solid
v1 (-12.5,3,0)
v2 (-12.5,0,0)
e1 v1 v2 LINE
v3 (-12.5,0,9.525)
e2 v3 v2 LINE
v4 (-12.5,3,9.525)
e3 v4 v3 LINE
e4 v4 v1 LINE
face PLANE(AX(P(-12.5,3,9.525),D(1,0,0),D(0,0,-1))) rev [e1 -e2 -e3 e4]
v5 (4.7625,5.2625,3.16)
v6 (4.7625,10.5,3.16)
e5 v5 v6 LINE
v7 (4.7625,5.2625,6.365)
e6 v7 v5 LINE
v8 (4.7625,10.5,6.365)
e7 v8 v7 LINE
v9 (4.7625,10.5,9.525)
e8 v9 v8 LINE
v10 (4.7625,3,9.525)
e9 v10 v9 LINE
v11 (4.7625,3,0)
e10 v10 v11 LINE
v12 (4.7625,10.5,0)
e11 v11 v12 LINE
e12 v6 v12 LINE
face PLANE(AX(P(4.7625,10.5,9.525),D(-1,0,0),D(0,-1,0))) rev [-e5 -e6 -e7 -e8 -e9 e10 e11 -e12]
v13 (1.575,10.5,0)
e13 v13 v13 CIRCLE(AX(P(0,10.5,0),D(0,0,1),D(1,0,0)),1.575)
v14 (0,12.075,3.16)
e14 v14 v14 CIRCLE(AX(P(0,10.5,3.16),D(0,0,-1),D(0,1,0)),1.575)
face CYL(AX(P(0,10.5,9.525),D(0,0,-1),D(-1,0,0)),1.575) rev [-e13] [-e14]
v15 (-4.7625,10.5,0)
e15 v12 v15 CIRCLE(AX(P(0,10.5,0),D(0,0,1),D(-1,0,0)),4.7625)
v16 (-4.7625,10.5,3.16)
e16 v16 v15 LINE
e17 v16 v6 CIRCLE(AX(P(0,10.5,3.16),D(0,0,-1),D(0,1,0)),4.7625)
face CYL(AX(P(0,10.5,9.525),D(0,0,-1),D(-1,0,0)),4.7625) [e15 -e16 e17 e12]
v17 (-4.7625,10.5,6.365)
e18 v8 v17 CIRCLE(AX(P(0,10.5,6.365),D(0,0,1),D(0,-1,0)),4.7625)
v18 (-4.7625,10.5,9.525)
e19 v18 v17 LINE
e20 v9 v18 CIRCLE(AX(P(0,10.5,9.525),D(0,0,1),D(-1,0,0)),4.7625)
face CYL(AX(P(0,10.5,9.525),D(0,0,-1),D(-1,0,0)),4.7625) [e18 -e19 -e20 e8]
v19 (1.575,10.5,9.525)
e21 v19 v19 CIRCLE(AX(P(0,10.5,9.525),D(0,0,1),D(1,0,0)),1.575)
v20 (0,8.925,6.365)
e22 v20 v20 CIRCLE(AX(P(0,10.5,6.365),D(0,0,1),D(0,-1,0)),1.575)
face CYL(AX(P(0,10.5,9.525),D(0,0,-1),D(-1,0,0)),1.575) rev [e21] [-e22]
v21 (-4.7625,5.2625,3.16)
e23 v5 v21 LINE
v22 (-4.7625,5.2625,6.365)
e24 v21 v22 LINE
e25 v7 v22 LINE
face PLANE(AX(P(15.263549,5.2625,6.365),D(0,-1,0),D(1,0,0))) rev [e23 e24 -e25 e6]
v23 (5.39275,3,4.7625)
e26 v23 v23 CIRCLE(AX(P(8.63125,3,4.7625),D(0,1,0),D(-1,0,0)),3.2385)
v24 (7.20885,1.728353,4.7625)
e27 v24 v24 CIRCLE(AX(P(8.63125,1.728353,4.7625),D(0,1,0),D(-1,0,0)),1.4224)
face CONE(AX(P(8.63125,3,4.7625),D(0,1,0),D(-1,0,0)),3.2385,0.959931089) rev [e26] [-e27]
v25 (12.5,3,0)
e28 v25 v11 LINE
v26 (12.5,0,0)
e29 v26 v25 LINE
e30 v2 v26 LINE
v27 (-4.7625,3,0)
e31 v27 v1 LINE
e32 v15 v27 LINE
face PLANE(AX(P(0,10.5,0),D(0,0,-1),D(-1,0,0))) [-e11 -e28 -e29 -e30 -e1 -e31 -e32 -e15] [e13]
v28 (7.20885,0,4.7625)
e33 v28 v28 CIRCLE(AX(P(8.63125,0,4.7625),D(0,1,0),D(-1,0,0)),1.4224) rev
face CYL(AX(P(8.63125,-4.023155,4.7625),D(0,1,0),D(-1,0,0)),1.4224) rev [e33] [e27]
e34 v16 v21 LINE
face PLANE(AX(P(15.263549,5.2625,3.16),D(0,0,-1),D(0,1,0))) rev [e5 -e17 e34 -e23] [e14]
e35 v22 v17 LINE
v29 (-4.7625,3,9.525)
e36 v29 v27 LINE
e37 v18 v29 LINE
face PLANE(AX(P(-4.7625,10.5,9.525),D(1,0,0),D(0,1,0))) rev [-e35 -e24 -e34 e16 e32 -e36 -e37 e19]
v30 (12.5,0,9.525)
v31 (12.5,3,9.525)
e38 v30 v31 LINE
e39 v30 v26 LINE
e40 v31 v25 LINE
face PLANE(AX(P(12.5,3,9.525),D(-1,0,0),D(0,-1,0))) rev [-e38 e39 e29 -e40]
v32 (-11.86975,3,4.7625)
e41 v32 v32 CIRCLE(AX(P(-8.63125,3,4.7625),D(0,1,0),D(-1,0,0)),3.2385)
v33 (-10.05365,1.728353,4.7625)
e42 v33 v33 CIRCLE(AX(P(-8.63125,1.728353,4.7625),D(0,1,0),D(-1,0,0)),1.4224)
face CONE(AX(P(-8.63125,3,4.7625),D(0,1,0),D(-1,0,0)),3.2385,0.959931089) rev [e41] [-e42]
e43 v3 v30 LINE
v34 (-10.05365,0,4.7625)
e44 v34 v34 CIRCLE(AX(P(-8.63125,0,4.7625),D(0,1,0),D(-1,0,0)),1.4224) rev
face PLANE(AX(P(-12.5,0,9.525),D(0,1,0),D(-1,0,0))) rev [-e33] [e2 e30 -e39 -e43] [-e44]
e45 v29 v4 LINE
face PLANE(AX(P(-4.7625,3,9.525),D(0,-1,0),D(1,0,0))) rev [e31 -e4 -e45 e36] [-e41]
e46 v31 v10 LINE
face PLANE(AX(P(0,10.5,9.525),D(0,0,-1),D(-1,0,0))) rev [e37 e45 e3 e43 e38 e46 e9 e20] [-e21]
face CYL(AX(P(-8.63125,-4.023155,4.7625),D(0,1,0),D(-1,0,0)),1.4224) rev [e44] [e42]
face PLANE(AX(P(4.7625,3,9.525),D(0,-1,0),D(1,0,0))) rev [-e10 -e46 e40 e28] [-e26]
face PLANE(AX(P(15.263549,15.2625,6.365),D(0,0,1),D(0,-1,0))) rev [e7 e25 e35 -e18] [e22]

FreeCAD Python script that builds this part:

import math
import FreeCAD as App
import Part
import Sketcher

doc = App.newDocument("Part")
params = doc.addObject("Spreadsheet::Sheet", "Params")
for row, (alias, value) in enumerate([
    ("sketch1_diameter", "3.15 mm"),
    ("sketch1_width", "25 mm"),
    ("sketch1_height", "3 mm"),
    ("sketch1_height2", "7.5 mm"),
    ("pad1_length", "9.525 mm"),
    ("sketch2_width", "10 mm"),
    ("pocket1_length", "9.525 mm"),
    ("pocket2_length", "3 mm"),
    ("pocket3_length", "2.2 mm"),
    ("pocket3_taper", "-55 deg"),
], start=1):
    params.set(f"A{row}", alias)
    params.set(f"B{row}", "=" + value)
    params.setAlias(f"B{row}", alias)

body = doc.addObject("PartDesign::Body", "Body")

# Sketch on XY plane
sketch1 = body.newObject("Sketcher::SketchObject", "Sketch")
sketch1.AttachmentSupport = (doc.getObject("XY_Plane"), [""])
sketch1.MapMode = "FlatFace"
sketch1.addGeometry(Part.LineSegment(App.Vector(4.8, 3, 0), App.Vector(4.8, 10.5, 0)), False)
sketch1.addGeometry(Part.ArcOfCircle(Part.Circle(App.Vector(0, 10.5, 0), App.Vector(0, 0, 1), 4.8), math.radians(0), math.radians(180)), False)
sketch1.addGeometry(Part.LineSegment(App.Vector(-4.8, 10.5, 0), App.Vector(-4.8, 3, 0)), False)
sketch1.addGeometry(Part.LineSegment(App.Vector(-4.8, 3, 0), App.Vector(-12.5, 3, 0)), False)
sketch1.addGeometry(Part.LineSegment(App.Vector(-12.5, 3, 0), App.Vector(-12.5, 0, 0)), False)
sketch1.addGeometry(Part.LineSegment(App.Vector(-12.5, 0, 0), App.Vector(12.5, 0, 0)), False)
sketch1.addGeometry(Part.LineSegment(App.Vector(12.5, 0, 0), App.Vector(12.5, 3, 0)), False)
sketch1.addGeometry(Part.LineSegment(App.Vector(12.5, 3, 0), App.Vector(4.8, 3, 0)), False)
sketch1.addGeometry(Part.Circle(App.Vector(0, 10.5, 0), App.Vector(0, 0, 1), 1.6), False)
sketch1.addConstraint(Sketcher.Constraint("Tangent", 0, 2, 1, 1))
sketch1.addConstraint(Sketcher.Constraint("Tangent", 1, 2, 2, 1))
sketch1.addConstraint(Sketcher.Constraint("Coincident", 2, 2, 3, 1))
sketch1.addConstraint(Sketcher.Constraint("Coincident", 3, 2, 4, 1))
sketch1.addConstraint(Sketcher.Constraint("Coincident", 4, 2, 5, 1))
sketch1.addConstraint(Sketcher.Constraint("Coincident", 5, 2, 6, 1))
sketch1.addConstraint(Sketcher.Constraint("Coincident", 6, 2, 7, 1))
sketch1.addConstraint(Sketcher.Constraint("Coincident", 7, 2, 0, 1))
sketch1.addConstraint(Sketcher.Constraint("Vertical", 0))
sketch1.addConstraint(Sketcher.Constraint("Vertical", 2))
sketch1.addConstraint(Sketcher.Constraint("Horizontal", 3))
sketch1.addConstraint(Sketcher.Constraint("Vertical", 4))
sketch1.addConstraint(Sketcher.Constraint("Horizontal", 5))
sketch1.addConstraint(Sketcher.Constraint("Vertical", 6))
sketch1.addConstraint(Sketcher.Constraint("Horizontal", 7))
sketch1.addConstraint(Sketcher.Constraint("Coincident", 8, 3, 1, 3))
sketch1.addConstraint(Sketcher.Constraint("Symmetric", 4, 2, 5, 2, -1, 1))
sketch1.addConstraint(Sketcher.Constraint("Symmetric", 2, 2, 7, 2, -2))
sketch1.addConstraint(Sketcher.Constraint("Diameter", 8, 3.15))
sketch1.addConstraint(Sketcher.Constraint("DistanceX", 5, 1, 5, 2, 25.0))
sketch1.addConstraint(Sketcher.Constraint("DistanceY", 4, 2, 4, 1, 3.0))
sketch1.addConstraint(Sketcher.Constraint("DistanceY", 0, 1, 0, 2, 7.5))
sketch1.addConstraint(Sketcher.Constraint("Radius", 1, 4.7625))
sketch1.setExpression("Constraints[18]", "Params.sketch1_diameter")
sketch1.setExpression("Constraints[19]", "Params.sketch1_width")
sketch1.setExpression("Constraints[20]", "Params.sketch1_height")
sketch1.setExpression("Constraints[21]", "Params.sketch1_height2")
pad1 = body.newObject("PartDesign::Pad", "Pad")
pad1.Profile = sketch1
pad1.setExpression("Length", "Params.pad1_length")

# Sketch on YZ plane
sketch2 = body.newObject("Sketcher::SketchObject", "Sketch001")
sketch2.AttachmentSupport = (doc.getObject("YZ_Plane"), [""])
sketch2.MapMode = "FlatFace"
sketch2.AttachmentOffset = App.Placement(App.Vector(0, 0, -4.7625), App.Rotation())
sketch2.addGeometry(Part.LineSegment(App.Vector(15.3, 3.2, 0), App.Vector(5.3, 3.2, 0)), False)
sketch2.addGeometry(Part.LineSegment(App.Vector(5.3, 3.2, 0), App.Vector(5.3, 6.4, 0)), False)
sketch2.addGeometry(Part.LineSegment(App.Vector(5.3, 6.4, 0), App.Vector(15.3, 6.4, 0)), False)
sketch2.addGeometry(Part.LineSegment(App.Vector(15.3, 6.4, 0), App.Vector(15.3, 3.2, 0)), False)
sketch2.addConstraint(Sketcher.Constraint("Coincident", 0, 2, 1, 1))
sketch2.addConstraint(Sketcher.Constraint("Coincident", 1, 2, 2, 1))
sketch2.addConstraint(Sketcher.Constraint("Coincident", 2, 2, 3, 1))
sketch2.addConstraint(Sketcher.Constraint("Coincident", 3, 2, 0, 1))
sketch2.addConstraint(Sketcher.Constraint("Horizontal", 0))
sketch2.addConstraint(Sketcher.Constraint("Vertical", 1))
sketch2.addConstraint(Sketcher.Constraint("Horizontal", 2))
sketch2.addConstraint(Sketcher.Constraint("Vertical", 3))
sketch2.addConstraint(Sketcher.Constraint("DistanceX", 0, 2, 0, 1, 10.0))
sketch2.addConstraint(Sketcher.Constraint("DistanceY", 1, 1, 1, 2, 3.205))
sketch2.addConstraint(Sketcher.Constraint("DistanceY", -1, 1, 0, 2, 3.16))
sketch2.addConstraint(Sketcher.Constraint("DistanceX", -1, 1, 0, 2, 5.2625))
sketch2.setExpression("Constraints[8]", "Params.sketch2_width")
pocket1 = body.newObject("PartDesign::Pocket", "Pocket")
pocket1.Profile = sketch2
pocket1.setExpression("Length", "Params.pocket1_length")
pocket1.Reversed = True

# Sketch on XZ plane
sketch3 = body.newObject("Sketcher::SketchObject", "Sketch002")
sketch3.AttachmentSupport = (doc.getObject("XZ_Plane"), [""])
sketch3.MapMode = "FlatFace"
sketch3.AttachmentOffset = App.Placement(App.Vector(0, 0, -3), App.Rotation())
sketch3.addGeometry(Part.Circle(App.Vector(8.6, 4.8, 0), App.Vector(0, 0, 1), 1.4), False)
sketch3.addGeometry(Part.Circle(App.Vector(-8.6, 4.8, 0), App.Vector(0, 0, 1), 1.4), False)
sketch3.addConstraint(Sketcher.Constraint("Equal", 0, 1))
sketch3.addConstraint(Sketcher.Constraint("Symmetric", 0, 3, 1, 3, -2))
sketch3.addConstraint(Sketcher.Constraint("Diameter", 0, 2.8448))
sketch3.addConstraint(Sketcher.Constraint("DistanceY", -1, 1, 0, 3, 4.7625))
sketch3.addConstraint(Sketcher.Constraint("DistanceX", 1, 3, 0, 3, 17.2625))
pocket2 = body.newObject("PartDesign::Pocket", "Pocket001")
pocket2.Profile = sketch3
pocket2.setExpression("Length", "Params.pocket2_length")
pocket2.Reversed = True

# Sketch on XZ plane
sketch4 = body.newObject("Sketcher::SketchObject", "Sketch003")
sketch4.AttachmentSupport = (doc.getObject("XZ_Plane"), [""])
sketch4.MapMode = "FlatFace"
sketch4.AttachmentOffset = App.Placement(App.Vector(0, 0, -3), App.Rotation())
sketch4.addGeometry(Part.Circle(App.Vector(8.6, 4.8, 0), App.Vector(0, 0, 1), 3.2), False)
sketch4.addGeometry(Part.Circle(App.Vector(-8.6, 4.8, 0), App.Vector(0, 0, 1), 3.2), False)
sketch4.addConstraint(Sketcher.Constraint("Equal", 0, 1))
sketch4.addConstraint(Sketcher.Constraint("Symmetric", 0, 3, 1, 3, -2))
sketch4.addConstraint(Sketcher.Constraint("Diameter", 0, 6.477))
sketch4.addConstraint(Sketcher.Constraint("DistanceY", -1, 1, 0, 3, 4.7625))
sketch4.addConstraint(Sketcher.Constraint("DistanceX", 1, 3, 0, 3, 17.2625))
pocket3 = body.newObject("PartDesign::Pocket", "Pocket002")
pocket3.Profile = sketch4
pocket3.setExpression("Length", "Params.pocket3_length")
pocket3.Reversed = True
pocket3.setExpression("TaperAngle", "Params.pocket3_taper")

doc.recompute()
